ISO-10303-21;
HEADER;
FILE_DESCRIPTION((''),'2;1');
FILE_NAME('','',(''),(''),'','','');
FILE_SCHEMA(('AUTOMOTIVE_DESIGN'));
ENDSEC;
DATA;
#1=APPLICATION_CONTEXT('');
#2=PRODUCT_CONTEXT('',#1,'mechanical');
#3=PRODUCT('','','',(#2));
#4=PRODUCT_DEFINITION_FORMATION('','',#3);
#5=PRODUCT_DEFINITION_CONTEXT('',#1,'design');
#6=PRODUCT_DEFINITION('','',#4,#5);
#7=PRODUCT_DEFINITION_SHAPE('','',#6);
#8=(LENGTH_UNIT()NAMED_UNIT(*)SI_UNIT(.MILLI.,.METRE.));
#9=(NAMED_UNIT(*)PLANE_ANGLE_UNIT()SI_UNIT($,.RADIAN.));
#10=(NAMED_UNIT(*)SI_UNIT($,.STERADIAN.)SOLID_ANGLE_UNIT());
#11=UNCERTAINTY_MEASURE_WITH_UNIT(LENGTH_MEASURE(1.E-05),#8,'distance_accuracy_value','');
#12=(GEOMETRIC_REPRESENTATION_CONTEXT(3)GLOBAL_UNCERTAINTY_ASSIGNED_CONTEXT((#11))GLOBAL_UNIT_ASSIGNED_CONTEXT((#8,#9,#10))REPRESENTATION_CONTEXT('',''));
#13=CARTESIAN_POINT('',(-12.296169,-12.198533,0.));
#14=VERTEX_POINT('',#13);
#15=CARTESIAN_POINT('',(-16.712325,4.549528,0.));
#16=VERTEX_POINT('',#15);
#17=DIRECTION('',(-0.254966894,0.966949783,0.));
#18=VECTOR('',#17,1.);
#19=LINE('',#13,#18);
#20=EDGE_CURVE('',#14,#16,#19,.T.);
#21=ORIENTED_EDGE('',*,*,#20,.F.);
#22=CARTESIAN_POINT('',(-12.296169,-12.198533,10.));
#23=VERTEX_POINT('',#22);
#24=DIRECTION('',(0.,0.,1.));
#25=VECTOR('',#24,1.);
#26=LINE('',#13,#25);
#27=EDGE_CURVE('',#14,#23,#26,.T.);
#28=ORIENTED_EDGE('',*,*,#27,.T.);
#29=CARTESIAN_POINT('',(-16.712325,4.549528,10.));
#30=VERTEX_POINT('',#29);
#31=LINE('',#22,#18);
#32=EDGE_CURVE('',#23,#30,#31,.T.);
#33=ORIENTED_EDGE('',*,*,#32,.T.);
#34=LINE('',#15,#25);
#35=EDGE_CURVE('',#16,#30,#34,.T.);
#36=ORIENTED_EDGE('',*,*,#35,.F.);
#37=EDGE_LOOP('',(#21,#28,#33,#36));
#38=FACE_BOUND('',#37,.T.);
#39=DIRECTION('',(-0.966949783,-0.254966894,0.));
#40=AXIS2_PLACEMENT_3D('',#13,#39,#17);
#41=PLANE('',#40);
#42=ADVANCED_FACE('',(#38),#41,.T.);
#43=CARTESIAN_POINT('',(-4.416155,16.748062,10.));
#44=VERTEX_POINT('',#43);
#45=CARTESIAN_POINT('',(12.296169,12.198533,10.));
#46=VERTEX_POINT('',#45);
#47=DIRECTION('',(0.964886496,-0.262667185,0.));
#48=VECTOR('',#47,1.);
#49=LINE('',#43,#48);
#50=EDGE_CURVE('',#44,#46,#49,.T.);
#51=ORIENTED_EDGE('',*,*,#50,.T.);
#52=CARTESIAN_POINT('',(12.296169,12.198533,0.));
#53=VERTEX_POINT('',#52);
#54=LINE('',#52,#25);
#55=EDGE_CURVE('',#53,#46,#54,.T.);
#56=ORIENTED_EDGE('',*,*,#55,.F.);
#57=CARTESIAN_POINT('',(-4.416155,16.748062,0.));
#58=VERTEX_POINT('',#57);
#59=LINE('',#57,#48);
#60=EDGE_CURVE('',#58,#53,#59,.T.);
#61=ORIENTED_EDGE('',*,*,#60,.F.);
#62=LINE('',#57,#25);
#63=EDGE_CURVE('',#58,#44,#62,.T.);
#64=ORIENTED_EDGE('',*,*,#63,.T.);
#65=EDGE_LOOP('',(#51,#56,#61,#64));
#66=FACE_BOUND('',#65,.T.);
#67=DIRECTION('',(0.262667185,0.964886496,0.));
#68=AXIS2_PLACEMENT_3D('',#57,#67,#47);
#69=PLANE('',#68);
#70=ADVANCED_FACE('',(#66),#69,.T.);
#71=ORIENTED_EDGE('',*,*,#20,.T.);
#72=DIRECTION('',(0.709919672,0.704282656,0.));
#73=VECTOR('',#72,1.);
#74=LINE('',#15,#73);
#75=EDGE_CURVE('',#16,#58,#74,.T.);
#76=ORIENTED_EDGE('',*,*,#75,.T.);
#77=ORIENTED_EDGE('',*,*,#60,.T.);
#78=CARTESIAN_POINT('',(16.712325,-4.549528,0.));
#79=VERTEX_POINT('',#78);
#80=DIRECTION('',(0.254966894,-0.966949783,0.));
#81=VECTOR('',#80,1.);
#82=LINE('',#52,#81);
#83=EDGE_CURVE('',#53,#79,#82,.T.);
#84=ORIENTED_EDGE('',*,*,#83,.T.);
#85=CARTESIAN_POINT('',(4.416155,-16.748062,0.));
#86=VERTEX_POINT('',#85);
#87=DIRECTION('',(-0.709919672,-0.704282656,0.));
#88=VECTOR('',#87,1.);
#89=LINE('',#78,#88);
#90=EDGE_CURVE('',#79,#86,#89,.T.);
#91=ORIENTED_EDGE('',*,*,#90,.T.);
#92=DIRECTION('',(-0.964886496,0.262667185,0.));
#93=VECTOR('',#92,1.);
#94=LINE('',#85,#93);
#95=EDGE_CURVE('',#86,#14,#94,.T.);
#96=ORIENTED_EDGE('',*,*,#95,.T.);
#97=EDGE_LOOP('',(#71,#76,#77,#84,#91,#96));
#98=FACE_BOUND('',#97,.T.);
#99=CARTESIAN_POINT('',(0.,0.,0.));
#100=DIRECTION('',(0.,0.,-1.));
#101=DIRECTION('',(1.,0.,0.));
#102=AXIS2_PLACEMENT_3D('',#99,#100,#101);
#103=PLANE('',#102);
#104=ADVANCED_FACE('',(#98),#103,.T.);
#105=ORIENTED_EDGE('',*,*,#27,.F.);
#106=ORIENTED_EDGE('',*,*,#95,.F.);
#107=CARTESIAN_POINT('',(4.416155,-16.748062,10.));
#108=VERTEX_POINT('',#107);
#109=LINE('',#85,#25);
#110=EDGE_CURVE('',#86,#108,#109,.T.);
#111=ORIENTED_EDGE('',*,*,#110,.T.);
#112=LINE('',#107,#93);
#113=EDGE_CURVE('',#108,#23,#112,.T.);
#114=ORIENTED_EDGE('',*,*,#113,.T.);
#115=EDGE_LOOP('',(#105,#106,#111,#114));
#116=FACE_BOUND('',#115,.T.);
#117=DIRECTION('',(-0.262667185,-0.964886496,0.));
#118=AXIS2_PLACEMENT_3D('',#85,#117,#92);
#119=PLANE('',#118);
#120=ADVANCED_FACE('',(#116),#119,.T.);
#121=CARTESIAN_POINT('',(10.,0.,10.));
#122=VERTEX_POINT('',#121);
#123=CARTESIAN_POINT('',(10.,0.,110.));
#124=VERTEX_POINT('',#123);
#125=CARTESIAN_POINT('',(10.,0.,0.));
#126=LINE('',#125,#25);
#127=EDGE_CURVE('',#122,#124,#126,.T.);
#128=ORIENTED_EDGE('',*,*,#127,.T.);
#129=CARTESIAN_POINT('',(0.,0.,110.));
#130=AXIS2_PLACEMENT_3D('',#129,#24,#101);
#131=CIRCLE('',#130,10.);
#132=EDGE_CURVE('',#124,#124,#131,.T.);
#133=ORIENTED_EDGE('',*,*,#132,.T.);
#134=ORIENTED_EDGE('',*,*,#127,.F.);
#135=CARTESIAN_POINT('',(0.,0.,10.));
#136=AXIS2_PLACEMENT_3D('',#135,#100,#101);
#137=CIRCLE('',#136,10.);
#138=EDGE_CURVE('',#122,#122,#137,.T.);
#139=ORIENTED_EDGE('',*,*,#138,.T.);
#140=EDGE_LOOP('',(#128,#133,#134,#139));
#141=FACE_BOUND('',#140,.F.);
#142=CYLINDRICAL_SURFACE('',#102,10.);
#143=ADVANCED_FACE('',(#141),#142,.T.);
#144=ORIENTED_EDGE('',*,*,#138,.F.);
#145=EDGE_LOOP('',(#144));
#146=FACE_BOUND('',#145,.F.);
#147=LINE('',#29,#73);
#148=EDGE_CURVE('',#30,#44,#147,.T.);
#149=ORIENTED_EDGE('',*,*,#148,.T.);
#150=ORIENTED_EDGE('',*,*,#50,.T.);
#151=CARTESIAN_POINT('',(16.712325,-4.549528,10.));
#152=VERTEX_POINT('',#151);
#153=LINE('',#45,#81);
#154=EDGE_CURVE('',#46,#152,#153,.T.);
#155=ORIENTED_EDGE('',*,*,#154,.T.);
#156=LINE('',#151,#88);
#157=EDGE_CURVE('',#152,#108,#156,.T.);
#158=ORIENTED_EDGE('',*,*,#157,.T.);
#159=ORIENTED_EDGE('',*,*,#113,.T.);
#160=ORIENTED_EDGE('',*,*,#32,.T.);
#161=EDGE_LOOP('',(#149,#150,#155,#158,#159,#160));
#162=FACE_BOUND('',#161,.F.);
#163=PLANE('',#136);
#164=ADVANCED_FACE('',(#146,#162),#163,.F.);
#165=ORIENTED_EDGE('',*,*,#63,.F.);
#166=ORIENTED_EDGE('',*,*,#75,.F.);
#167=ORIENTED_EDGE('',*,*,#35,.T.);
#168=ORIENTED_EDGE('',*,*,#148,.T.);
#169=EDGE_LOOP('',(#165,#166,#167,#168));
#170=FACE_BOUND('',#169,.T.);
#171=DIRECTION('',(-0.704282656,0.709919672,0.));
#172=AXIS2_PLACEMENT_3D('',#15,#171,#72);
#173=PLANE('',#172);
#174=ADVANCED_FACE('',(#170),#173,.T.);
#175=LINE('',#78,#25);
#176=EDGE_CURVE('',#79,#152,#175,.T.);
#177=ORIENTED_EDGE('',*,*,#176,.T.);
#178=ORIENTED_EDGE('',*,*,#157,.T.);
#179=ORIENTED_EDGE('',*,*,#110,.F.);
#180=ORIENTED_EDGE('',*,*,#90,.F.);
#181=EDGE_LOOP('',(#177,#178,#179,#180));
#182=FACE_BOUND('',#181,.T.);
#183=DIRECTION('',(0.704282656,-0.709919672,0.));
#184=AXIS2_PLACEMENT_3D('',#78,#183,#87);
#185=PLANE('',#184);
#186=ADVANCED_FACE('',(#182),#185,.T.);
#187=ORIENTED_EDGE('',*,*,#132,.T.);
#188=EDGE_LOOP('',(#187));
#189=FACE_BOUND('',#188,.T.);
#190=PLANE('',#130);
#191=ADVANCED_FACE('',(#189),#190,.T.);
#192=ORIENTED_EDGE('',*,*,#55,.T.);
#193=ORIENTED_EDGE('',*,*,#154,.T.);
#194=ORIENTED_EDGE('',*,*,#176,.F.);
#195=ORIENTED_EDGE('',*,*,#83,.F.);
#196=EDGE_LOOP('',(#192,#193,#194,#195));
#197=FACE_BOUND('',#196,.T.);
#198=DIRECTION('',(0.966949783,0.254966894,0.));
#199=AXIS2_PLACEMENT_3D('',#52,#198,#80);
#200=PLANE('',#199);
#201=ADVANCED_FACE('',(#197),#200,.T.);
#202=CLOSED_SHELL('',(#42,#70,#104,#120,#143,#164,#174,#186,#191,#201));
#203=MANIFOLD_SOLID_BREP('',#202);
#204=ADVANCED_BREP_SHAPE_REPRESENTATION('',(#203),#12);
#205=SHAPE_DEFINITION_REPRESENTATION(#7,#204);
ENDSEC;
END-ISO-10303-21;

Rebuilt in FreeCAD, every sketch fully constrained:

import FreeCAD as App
import Part
import Sketcher
from FreeCAD import Vector
Q = App.Units.Quantity


def add_polygon(sketch, points):
    """Adds a closed chain of lines whose ends are joined by coincident constraints."""
    first, n = sketch.GeometryCount, len(points)
    for a, b in zip(points, points[1:] + points[:1]):
        sketch.addGeometry(Part.LineSegment(App.Vector(*a, 0), App.Vector(*b, 0)), False)
    for i in range(n):
        sketch.addConstraint(Sketcher.Constraint("Coincident", first + i, 2, first + (i + 1) % n, 1))

doc = App.newDocument("Part")
body = doc.addObject("PartDesign::Body", "Body")

sketch1 = body.newObject("Sketcher::SketchObject", "Sketch")
sketch1.AttachmentSupport = (doc.getObject("XY_Plane"), [""])
sketch1.MapMode = "FlatFace"
sketch1.addGeometry(Part.Circle(Vector(0, 0, 0), Vector(0, 0, 1), 10), False)
sketch1.addConstraint(Sketcher.Constraint("Coincident", 0, 3, -1, 1))
sketch1.addConstraint(Sketcher.Constraint("Diameter", 0, Q("20 mm")))
pad1 = body.newObject("PartDesign::Pad", "Pad")
pad1.Profile = sketch1
pad1.Length = 110

sketch2 = body.newObject("Sketcher::SketchObject", "Sketch001")
sketch2.AttachmentSupport = (doc.getObject("XY_Plane"), [""])
sketch2.MapMode = "FlatFace"
add_polygon(sketch2, [(12, 12), (17, -5), (4, -17), (-12, -12), (-17, 5), (-4, 17)])
sketch2.addGeometry(Part.Circle(Vector(0, 0, 0), Vector(0, 0, 1), 10), False)
sketch2.addConstraint(Sketcher.Constraint("Coincident", 6, 3, -1, 1))
sketch2.addConstraint(Sketcher.Constraint("Symmetric", 0, 2, 3, 2, -1, 1))
sketch2.addConstraint(Sketcher.Constraint("Symmetric", 1, 2, 4, 2, -1, 1))
sketch2.addConstraint(Sketcher.Constraint("Symmetric", 2, 2, 5, 2, -1, 1))
sketch2.addConstraint(Sketcher.Constraint("Equal", 0, 1))
sketch2.addConstraint(Sketcher.Constraint("Equal", 1, 2))
sketch2.addConstraint(Sketcher.Constraint("Diameter", 6, Q("20 mm")))
sketch2.addConstraint(Sketcher.Constraint("Distance", 1, Q("17.320509 mm")))
sketch2.addConstraint(Sketcher.Constraint("DistanceX", 2, 2, -1, 1, Q("12.296169 mm")))
sketch2.addConstraint(Sketcher.Constraint("DistanceX", 1, 2, 0, 2, Q("12.29617 mm")))
sketch2.addConstraint(Sketcher.Constraint("DistanceY", 1, 2, 2, 2, Q("4.549529 mm")))
pad2 = body.newObject("PartDesign::Pad", "Pad001")
pad2.Profile = sketch2
pad2.Length = 10

doc.recompute()
